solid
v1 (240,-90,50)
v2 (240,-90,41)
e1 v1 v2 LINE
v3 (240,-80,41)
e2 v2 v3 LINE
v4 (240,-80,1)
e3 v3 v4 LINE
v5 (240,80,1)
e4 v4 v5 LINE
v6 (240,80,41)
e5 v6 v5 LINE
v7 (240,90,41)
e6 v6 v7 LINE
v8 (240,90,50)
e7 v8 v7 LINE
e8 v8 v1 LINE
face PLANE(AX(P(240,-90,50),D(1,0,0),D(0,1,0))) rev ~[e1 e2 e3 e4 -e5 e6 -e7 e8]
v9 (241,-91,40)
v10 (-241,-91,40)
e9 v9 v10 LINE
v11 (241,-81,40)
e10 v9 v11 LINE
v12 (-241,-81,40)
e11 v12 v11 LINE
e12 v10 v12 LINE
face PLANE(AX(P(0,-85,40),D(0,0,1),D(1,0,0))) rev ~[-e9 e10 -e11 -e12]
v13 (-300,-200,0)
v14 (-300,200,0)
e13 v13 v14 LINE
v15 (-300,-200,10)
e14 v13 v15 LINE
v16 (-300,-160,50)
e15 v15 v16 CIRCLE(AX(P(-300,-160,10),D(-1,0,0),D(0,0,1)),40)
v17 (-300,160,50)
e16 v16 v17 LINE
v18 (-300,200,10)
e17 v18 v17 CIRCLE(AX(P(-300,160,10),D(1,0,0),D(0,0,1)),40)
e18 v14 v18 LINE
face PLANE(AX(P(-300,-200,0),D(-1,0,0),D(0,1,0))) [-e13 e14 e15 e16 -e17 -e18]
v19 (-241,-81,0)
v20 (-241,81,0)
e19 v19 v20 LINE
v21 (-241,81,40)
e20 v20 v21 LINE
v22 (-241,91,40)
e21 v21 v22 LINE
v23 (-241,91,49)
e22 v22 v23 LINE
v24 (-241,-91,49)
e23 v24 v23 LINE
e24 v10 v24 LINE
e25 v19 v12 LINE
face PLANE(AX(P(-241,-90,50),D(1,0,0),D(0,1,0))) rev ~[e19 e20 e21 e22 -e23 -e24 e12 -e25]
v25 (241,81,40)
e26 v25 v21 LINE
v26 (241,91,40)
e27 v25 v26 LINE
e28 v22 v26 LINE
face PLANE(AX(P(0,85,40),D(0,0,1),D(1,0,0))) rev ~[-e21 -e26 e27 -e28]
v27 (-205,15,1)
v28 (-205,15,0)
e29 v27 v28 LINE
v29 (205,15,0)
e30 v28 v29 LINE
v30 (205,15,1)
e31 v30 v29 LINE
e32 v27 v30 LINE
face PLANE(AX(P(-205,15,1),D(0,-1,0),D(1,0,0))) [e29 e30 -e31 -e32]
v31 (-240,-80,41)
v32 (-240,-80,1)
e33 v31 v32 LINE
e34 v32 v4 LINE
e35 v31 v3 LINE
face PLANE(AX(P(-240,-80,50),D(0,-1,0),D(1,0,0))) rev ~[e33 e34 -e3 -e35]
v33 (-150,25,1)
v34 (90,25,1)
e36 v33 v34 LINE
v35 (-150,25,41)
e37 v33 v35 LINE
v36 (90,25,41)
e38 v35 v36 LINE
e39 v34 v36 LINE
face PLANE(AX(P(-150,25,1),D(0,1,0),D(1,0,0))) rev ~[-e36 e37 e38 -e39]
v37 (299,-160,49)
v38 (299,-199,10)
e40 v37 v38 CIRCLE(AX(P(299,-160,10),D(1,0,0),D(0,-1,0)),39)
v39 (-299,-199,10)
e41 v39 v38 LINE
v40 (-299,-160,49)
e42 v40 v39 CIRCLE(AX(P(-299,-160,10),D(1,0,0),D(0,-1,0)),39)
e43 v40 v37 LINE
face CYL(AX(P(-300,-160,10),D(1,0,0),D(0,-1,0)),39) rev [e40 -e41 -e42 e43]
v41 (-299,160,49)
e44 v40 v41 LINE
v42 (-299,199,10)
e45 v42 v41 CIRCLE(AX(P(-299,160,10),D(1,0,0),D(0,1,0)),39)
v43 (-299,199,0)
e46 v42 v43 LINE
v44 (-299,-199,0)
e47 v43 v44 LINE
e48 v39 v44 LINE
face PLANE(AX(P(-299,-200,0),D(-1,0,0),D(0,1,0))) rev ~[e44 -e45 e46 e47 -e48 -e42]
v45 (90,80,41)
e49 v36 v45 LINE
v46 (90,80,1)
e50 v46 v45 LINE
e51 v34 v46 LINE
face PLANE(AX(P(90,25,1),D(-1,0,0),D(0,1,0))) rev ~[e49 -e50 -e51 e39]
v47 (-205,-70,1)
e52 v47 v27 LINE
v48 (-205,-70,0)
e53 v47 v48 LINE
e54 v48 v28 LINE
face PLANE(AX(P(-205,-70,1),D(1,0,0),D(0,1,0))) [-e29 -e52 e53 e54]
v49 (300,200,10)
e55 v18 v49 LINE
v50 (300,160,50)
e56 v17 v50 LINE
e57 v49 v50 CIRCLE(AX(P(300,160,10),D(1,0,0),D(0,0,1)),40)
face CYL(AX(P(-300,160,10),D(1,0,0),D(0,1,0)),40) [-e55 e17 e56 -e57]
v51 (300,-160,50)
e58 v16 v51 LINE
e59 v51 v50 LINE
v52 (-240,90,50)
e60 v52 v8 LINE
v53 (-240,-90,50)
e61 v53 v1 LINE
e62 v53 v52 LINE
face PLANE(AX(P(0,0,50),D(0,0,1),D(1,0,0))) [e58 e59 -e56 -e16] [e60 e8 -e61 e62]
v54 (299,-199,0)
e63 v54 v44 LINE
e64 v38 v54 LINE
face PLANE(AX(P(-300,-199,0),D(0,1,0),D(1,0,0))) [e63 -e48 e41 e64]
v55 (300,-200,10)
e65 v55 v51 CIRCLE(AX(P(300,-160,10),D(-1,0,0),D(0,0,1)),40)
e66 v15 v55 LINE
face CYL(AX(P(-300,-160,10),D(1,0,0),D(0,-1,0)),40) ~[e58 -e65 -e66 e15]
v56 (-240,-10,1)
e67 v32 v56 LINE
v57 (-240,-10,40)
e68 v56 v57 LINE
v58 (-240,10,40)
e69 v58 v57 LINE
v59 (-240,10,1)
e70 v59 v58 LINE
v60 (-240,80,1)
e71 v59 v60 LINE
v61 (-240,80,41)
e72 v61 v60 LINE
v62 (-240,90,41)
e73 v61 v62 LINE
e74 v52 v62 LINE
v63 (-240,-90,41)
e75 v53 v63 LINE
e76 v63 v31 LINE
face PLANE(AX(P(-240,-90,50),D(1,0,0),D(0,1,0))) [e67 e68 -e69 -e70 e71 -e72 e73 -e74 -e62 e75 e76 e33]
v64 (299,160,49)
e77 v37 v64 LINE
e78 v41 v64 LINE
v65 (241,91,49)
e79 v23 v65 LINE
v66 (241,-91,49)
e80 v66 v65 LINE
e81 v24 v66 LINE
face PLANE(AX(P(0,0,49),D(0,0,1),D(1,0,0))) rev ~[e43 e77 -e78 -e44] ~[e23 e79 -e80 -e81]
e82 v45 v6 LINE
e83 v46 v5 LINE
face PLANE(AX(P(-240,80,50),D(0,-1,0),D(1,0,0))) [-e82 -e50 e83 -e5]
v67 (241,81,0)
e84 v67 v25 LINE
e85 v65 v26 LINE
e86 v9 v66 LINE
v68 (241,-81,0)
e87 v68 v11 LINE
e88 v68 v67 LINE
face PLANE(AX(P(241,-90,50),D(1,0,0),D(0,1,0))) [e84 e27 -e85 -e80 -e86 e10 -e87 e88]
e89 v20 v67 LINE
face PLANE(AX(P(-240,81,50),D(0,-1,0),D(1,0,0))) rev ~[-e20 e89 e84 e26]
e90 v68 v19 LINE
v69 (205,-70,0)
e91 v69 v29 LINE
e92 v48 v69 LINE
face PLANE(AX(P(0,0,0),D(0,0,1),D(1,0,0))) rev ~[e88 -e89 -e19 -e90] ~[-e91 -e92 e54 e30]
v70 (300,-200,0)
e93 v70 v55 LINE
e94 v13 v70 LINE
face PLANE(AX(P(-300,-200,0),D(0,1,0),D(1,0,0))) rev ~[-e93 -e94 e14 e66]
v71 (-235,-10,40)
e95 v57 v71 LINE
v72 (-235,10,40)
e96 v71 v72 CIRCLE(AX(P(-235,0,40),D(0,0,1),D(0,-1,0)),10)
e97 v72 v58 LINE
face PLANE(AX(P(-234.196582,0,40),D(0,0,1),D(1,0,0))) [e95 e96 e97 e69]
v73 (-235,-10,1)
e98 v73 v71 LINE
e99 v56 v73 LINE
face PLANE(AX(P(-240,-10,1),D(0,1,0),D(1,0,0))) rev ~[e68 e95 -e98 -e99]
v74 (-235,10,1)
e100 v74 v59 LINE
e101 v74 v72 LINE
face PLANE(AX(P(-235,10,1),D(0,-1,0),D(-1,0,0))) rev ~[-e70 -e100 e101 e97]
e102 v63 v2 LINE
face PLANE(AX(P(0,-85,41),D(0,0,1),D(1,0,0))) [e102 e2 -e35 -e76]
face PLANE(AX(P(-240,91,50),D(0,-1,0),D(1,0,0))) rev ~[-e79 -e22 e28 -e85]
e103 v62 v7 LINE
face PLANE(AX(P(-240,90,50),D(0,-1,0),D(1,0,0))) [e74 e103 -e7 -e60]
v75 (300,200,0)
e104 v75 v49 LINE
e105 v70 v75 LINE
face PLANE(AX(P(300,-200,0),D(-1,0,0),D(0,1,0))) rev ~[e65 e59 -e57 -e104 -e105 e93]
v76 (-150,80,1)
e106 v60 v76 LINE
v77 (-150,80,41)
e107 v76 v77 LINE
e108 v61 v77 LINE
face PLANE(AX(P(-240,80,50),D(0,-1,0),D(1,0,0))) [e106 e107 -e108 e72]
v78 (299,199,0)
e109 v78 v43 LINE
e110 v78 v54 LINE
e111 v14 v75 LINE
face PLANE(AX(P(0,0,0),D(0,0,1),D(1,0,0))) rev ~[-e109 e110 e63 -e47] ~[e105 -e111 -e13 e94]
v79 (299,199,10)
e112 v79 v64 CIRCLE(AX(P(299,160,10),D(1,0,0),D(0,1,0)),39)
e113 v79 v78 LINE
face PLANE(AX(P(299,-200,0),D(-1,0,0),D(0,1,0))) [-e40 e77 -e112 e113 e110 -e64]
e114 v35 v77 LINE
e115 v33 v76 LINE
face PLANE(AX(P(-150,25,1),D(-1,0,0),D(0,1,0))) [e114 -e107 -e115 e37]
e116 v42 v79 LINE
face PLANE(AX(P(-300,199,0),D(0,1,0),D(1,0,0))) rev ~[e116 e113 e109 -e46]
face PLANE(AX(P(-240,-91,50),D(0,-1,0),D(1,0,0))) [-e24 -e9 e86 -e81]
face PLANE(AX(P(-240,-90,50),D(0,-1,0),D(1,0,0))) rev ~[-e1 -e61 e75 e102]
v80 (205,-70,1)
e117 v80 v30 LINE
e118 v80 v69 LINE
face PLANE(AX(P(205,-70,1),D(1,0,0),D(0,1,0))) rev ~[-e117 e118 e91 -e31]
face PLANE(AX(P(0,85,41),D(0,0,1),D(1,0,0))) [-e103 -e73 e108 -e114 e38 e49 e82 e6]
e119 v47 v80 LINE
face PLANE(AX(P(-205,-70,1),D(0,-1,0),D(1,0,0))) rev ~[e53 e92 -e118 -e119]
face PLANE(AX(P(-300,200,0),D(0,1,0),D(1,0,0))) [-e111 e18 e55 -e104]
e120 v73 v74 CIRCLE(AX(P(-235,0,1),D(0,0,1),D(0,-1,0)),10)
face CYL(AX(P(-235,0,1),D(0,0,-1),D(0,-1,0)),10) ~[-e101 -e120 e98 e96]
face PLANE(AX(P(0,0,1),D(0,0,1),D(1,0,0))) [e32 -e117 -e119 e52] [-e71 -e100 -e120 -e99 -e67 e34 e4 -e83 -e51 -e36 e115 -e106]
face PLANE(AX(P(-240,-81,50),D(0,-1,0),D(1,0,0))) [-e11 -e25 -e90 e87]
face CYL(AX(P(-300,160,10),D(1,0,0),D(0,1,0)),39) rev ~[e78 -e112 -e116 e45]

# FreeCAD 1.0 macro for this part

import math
import FreeCAD as App
import Part
import Sketcher

V = App.Vector


def edges_at(feature, points):
    """Names of the edges that pass closest to the given points."""
    edges = feature.Shape.Edges
    near = lambda p: min(range(len(edges)), key=lambda i: edges[i].distToShape(Part.Vertex(*p))[0])
    return sorted({f"Edge{near(p) + 1}" for p in points})


def faces_at(feature, points):
    """Names of the faces that lie closest to the given points."""
    faces = feature.Shape.Faces
    near = lambda p: min(range(len(faces)), key=lambda i: faces[i].distToShape(Part.Vertex(*p))[0])
    return sorted({f"Face{near(p) + 1}" for p in points})

doc = App.newDocument("Part")
params = doc.addObject("Spreadsheet::Sheet", "Params")
for row, (alias, value) in enumerate([
    ("sketch1_width", "600 mm"),
    ("sketch1_height", "400 mm"),
    ("pad1_length", "50 mm"),
    ("fillet_radius", "40 mm"),
    ("sketch2_width", "480 mm"),
    ("sketch2_height", "160 mm"),
    ("pocket1_length", "49 mm"),
    ("sketch3_width", "480 mm"),
    ("sketch3_height", "10 mm"),
    ("pocket2_length", "9 mm"),
    ("thickness_wall", "1 mm"),
    ("sketch4_width", "410 mm"),
    ("sketch4_height", "85 mm"),
    ("sketch5_width", "240 mm"),
    ("sketch5_height", "55 mm"),
    ("pad2_length", "40 mm"),
    ("sketch6_radius", "10 mm"),
    ("sketch6_width", "5 mm"),
    ("pad3_length", "39 mm"),
], start=1):
    params.set(f"A{row}", alias)
    params.set(f"B{row}", "=" + value)
    params.setAlias(f"B{row}", alias)

body = doc.addObject("PartDesign::Body", "Body")

sketch1 = doc.addObject("Sketcher::SketchObject", "Sketch")
body.addObject(sketch1)
sketch1.AttachmentSupport = (doc.XY_Plane, [""])
sketch1.MapMode = "FlatFace"
sketch1.addGeometry(Part.LineSegment(V(-300, 200, 0), V(-300, -200, 0)), False)
sketch1.addGeometry(Part.LineSegment(V(-300, -200, 0), V(300, -200, 0)), False)
sketch1.addGeometry(Part.LineSegment(V(300, -200, 0), V(300, 200, 0)), False)
sketch1.addGeometry(Part.LineSegment(V(300, 200, 0), V(-300, 200, 0)), False)
sketch1.addConstraint(Sketcher.Constraint("Coincident", 0, 2, 1, 1))
sketch1.addConstraint(Sketcher.Constraint("Coincident", 1, 2, 2, 1))
sketch1.addConstraint(Sketcher.Constraint("Coincident", 2, 2, 3, 1))
sketch1.addConstraint(Sketcher.Constraint("Coincident", 3, 2, 0, 1))
sketch1.addConstraint(Sketcher.Constraint("Vertical", 0))
sketch1.addConstraint(Sketcher.Constraint("Horizontal", 1))
sketch1.addConstraint(Sketcher.Constraint("Vertical", 2))
sketch1.addConstraint(Sketcher.Constraint("Horizontal", 3))
sketch1.addConstraint(Sketcher.Constraint("Symmetric", 0, 2, 2, 2, -1, 1))
sketch1.addConstraint(Sketcher.Constraint("DistanceX", 1, 1, 1, 2, 600.0))
sketch1.addConstraint(Sketcher.Constraint("DistanceY", 0, 2, 0, 1, 400.0))
sketch1.setExpression("Constraints[9]", "Params.sketch1_width")
sketch1.setExpression("Constraints[10]", "Params.sketch1_height")
pad1 = doc.addObject("PartDesign::Pad", "Pad")
body.addObject(pad1)
pad1.Profile = sketch1
pad1.setExpression("Length", "Params.pad1_length")
doc.recompute()

fillet = doc.addObject("PartDesign::Fillet", "Fillet")
body.addObject(fillet)
fillet.Base = (pad1, edges_at(pad1, [(0, -200, 50), (0, 200, 50)]))
fillet.setExpression("Radius", "Params.fillet_radius")

sketch2 = doc.addObject("Sketcher::SketchObject", "Sketch001")
body.addObject(sketch2)
sketch2.AttachmentSupport = (doc.XY_Plane, [""])
sketch2.MapMode = "FlatFace"
sketch2.AttachmentOffset = App.Placement(V(0, 0, 50), App.Rotation())
sketch2.addGeometry(Part.LineSegment(V(-240, 80, 0), V(-240, -80, 0)), False)
sketch2.addGeometry(Part.LineSegment(V(-240, -80, 0), V(240, -80, 0)), False)
sketch2.addGeometry(Part.LineSegment(V(240, -80, 0), V(240, 80, 0)), False)
sketch2.addGeometry(Part.LineSegment(V(240, 80, 0), V(-240, 80, 0)), False)
sketch2.addConstraint(Sketcher.Constraint("Coincident", 0, 2, 1, 1))
sketch2.addConstraint(Sketcher.Constraint("Coincident", 1, 2, 2, 1))
sketch2.addConstraint(Sketcher.Constraint("Coincident", 2, 2, 3, 1))
sketch2.addConstraint(Sketcher.Constraint("Coincident", 3, 2, 0, 1))
sketch2.addConstraint(Sketcher.Constraint("Vertical", 0))
sketch2.addConstraint(Sketcher.Constraint("Horizontal", 1))
sketch2.addConstraint(Sketcher.Constraint("Vertical", 2))
sketch2.addConstraint(Sketcher.Constraint("Horizontal", 3))
sketch2.addConstraint(Sketcher.Constraint("Symmetric", 0, 2, 2, 2, -1, 1))
sketch2.addConstraint(Sketcher.Constraint("DistanceX", 1, 1, 1, 2, 480.0))
sketch2.addConstraint(Sketcher.Constraint("DistanceY", 0, 2, 0, 1, 160.0))
sketch2.setExpression("Constraints[9]", "Params.sketch2_width")
sketch2.setExpression("Constraints[10]", "Params.sketch2_height")
pocket1 = doc.addObject("PartDesign::Pocket", "Pocket")
body.addObject(pocket1)
pocket1.Profile = sketch2
pocket1.setExpression("Length", "Params.pocket1_length")

sketch3 = doc.addObject("Sketcher::SketchObject", "Sketch002")
body.addObject(sketch3)
sketch3.AttachmentSupport = (doc.XY_Plane, [""])
sketch3.MapMode = "FlatFace"
sketch3.AttachmentOffset = App.Placement(V(0, 0, 50), App.Rotation())
sketch3.addGeometry(Part.LineSegment(V(-240, 90, 0), V(-240, 80, 0)), False)
sketch3.addGeometry(Part.LineSegment(V(-240, 80, 0), V(240, 80, 0)), False)
sketch3.addGeometry(Part.LineSegment(V(240, 80, 0), V(240, 90, 0)), False)
sketch3.addGeometry(Part.LineSegment(V(240, 90, 0), V(-240, 90, 0)), False)
sketch3.addGeometry(Part.LineSegment(V(-240, -80, 0), V(-240, -90, 0)), False)
sketch3.addGeometry(Part.LineSegment(V(-240, -90, 0), V(240, -90, 0)), False)
sketch3.addGeometry(Part.LineSegment(V(240, -90, 0), V(240, -80, 0)), False)
sketch3.addGeometry(Part.LineSegment(V(240, -80, 0), V(-240, -80, 0)), False)
sketch3.addConstraint(Sketcher.Constraint("Coincident", 0, 2, 1, 1))
sketch3.addConstraint(Sketcher.Constraint("Coincident", 1, 2, 2, 1))
sketch3.addConstraint(Sketcher.Constraint("Coincident", 2, 2, 3, 1))
sketch3.addConstraint(Sketcher.Constraint("Coincident", 3, 2, 0, 1))
sketch3.addConstraint(Sketcher.Constraint("Coincident", 4, 2, 5, 1))
sketch3.addConstraint(Sketcher.Constraint("Coincident", 5, 2, 6, 1))
sketch3.addConstraint(Sketcher.Constraint("Coincident", 6, 2, 7, 1))
sketch3.addConstraint(Sketcher.Constraint("Coincident", 7, 2, 4, 1))
sketch3.addConstraint(Sketcher.Constraint("Vertical", 0))
sketch3.addConstraint(Sketcher.Constraint("Horizontal", 1))
sketch3.addConstraint(Sketcher.Constraint("Vertical", 2))
sketch3.addConstraint(Sketcher.Constraint("Horizontal", 3))
sketch3.addConstraint(Sketcher.Constraint("Vertical", 4))
sketch3.addConstraint(Sketcher.Constraint("Horizontal", 5))
sketch3.addConstraint(Sketcher.Constraint("Vertical", 6))
sketch3.addConstraint(Sketcher.Constraint("Horizontal", 7))
sketch3.addConstraint(Sketcher.Constraint("Symmetric", 2, 2, 4, 2, -1, 1))
sketch3.addConstraint(Sketcher.Constraint("Symmetric", 0, 2, 6, 2, -1, 1))
sketch3.addConstraint(Sketcher.Constraint("Vertical", 3, 2, 4, 2))
sketch3.addConstraint(Sketcher.Constraint("DistanceX", 1, 1, 1, 2, 480.0))
sketch3.addConstraint(Sketcher.Constraint("DistanceY", 0, 2, 0, 1, 10.0))
sketch3.addConstraint(Sketcher.Constraint("DistanceY", -1, 1, 0, 2, 80.0))
sketch3.setExpression("Constraints[19]", "Params.sketch3_width")
sketch3.setExpression("Constraints[20]", "Params.sketch3_height")
pocket2 = doc.addObject("PartDesign::Pocket", "Pocket001")
body.addObject(pocket2)
pocket2.Profile = sketch3
pocket2.setExpression("Length", "Params.pocket2_length")
doc.recompute()

thickness = doc.addObject("PartDesign::Thickness", "Thickness")
body.addObject(thickness)
thickness.Base = (pocket2, faces_at(pocket2, [(0, 0, 0)]))
thickness.setExpression("Value", "Params.thickness_wall")
thickness.Reversed = True
thickness.Join = "Intersection"

sketch4 = doc.addObject("Sketcher::SketchObject", "Sketch003")
body.addObject(sketch4)
sketch4.AttachmentSupport = (doc.XY_Plane, [""])
sketch4.MapMode = "FlatFace"
sketch4.AttachmentOffset = App.Placement(V(0, 0, 1), App.Rotation())
sketch4.addGeometry(Part.LineSegment(V(-205, 15, 0), V(-205, -70, 0)), False)
sketch4.addGeometry(Part.LineSegment(V(-205, -70, 0), V(205, -70, 0)), False)
sketch4.addGeometry(Part.LineSegment(V(205, -70, 0), V(205, 15, 0)), False)
sketch4.addGeometry(Part.LineSegment(V(205, 15, 0), V(-205, 15, 0)), False)
sketch4.addConstraint(Sketcher.Constraint("Coincident", 0, 2, 1, 1))
sketch4.addConstraint(Sketcher.Constraint("Coincident", 1, 2, 2, 1))
sketch4.addConstraint(Sketcher.Constraint("Coincident", 2, 2, 3, 1))
sketch4.addConstraint(Sketcher.Constraint("Coincident", 3, 2, 0, 1))
sketch4.addConstraint(Sketcher.Constraint("Vertical", 0))
sketch4.addConstraint(Sketcher.Constraint("Horizontal", 1))
sketch4.addConstraint(Sketcher.Constraint("Vertical", 2))
sketch4.addConstraint(Sketcher.Constraint("Horizontal", 3))
sketch4.addConstraint(Sketcher.Constraint("DistanceX", 1, 1, 1, 2, 410.0))
sketch4.addConstraint(Sketcher.Constraint("DistanceY", 0, 2, 0, 1, 85.0))
sketch4.addConstraint(Sketcher.Constraint("DistanceX", 0, 2, -1, 1, 205.0))
sketch4.addConstraint(Sketcher.Constraint("DistanceY", 0, 2, -1, 1, 70.0))
sketch4.setExpression("Constraints[8]", "Params.sketch4_width")
sketch4.setExpression("Constraints[9]", "Params.sketch4_height")
pocket3 = doc.addObject("PartDesign::Pocket", "Pocket002")
body.addObject(pocket3)
pocket3.Profile = sketch4
pocket3.Type = "ThroughAll"

sketch5 = doc.addObject("Sketcher::SketchObject", "Sketch004")
body.addObject(sketch5)
sketch5.AttachmentSupport = (doc.XY_Plane, [""])
sketch5.MapMode = "FlatFace"
sketch5.AttachmentOffset = App.Placement(V(0, 0, 1), App.Rotation())
sketch5.addGeometry(Part.LineSegment(V(-150, 80, 0), V(-150, 25, 0)), False)
sketch5.addGeometry(Part.LineSegment(V(-150, 25, 0), V(90, 25, 0)), False)
sketch5.addGeometry(Part.LineSegment(V(90, 25, 0), V(90, 80, 0)), False)
sketch5.addGeometry(Part.LineSegment(V(90, 80, 0), V(-150, 80, 0)), False)
sketch5.addConstraint(Sketcher.Constraint("Coincident", 0, 2, 1, 1))
sketch5.addConstraint(Sketcher.Constraint("Coincident", 1, 2, 2, 1))
sketch5.addConstraint(Sketcher.Constraint("Coincident", 2, 2, 3, 1))
sketch5.addConstraint(Sketcher.Constraint("Coincident", 3, 2, 0, 1))
sketch5.addConstraint(Sketcher.Constraint("Vertical", 0))
sketch5.addConstraint(Sketcher.Constraint("Horizontal", 1))
sketch5.addConstraint(Sketcher.Constraint("Vertical", 2))
sketch5.addConstraint(Sketcher.Constraint("Horizontal", 3))
sketch5.addConstraint(Sketcher.Constraint("DistanceX", 1, 1, 1, 2, 240.0))
sketch5.addConstraint(Sketcher.Constraint("DistanceY", 0, 2, 0, 1, 55.0))
sketch5.addConstraint(Sketcher.Constraint("DistanceX", 0, 2, -1, 1, 150.0))
sketch5.addConstraint(Sketcher.Constraint("DistanceY", -1, 1, 0, 2, 25.0))
sketch5.setExpression("Constraints[8]", "Params.sketch5_width")
sketch5.setExpression("Constraints[9]", "Params.sketch5_height")
pad2 = doc.addObject("PartDesign::Pad", "Pad001")
body.addObject(pad2)
pad2.Profile = sketch5
pad2.setExpression("Length", "Params.pad2_length")

sketch6 = doc.addObject("Sketcher::SketchObject", "Sketch005")
body.addObject(sketch6)
sketch6.AttachmentSupport = (doc.XY_Plane, [""])
sketch6.MapMode = "FlatFace"
sketch6.AttachmentOffset = App.Placement(V(0, 0, 1), App.Rotation())
sketch6.addGeometry(Part.LineSegment(V(-240, -10, 0), V(-235, -10, 0)), False)
sketch6.addGeometry(Part.ArcOfCircle(Part.Circle(V(-235, 0, 0), V(0, 0, 1), 10), math.radians(-90), math.radians(90)), False)
sketch6.addGeometry(Part.LineSegment(V(-235, 10, 0), V(-240, 10, 0)), False)
sketch6.addGeometry(Part.LineSegment(V(-240, 10, 0), V(-240, -10, 0)), False)
sketch6.addConstraint(Sketcher.Constraint("Tangent", 0, 2, 1, 1))
sketch6.addConstraint(Sketcher.Constraint("Tangent", 1, 2, 2, 1))
sketch6.addConstraint(Sketcher.Constraint("Coincident", 2, 2, 3, 1))
sketch6.addConstraint(Sketcher.Constraint("Coincident", 3, 2, 0, 1))
sketch6.addConstraint(Sketcher.Constraint("Horizontal", 0))
sketch6.addConstraint(Sketcher.Constraint("Horizontal", 2))
sketch6.addConstraint(Sketcher.Constraint("Vertical", 3))
sketch6.addConstraint(Sketcher.Constraint("PointOnObject", 1, 3, -1))
sketch6.addConstraint(Sketcher.Constraint("Radius", 1, 10.0))
sketch6.addConstraint(Sketcher.Constraint("DistanceX", 0, 1, 0, 2, 5.0))
sketch6.addConstraint(Sketcher.Constraint("DistanceX", 1, 3, -1, 1, 235.0))
sketch6.setExpression("Constraints[8]", "Params.sketch6_radius")
sketch6.setExpression("Constraints[9]", "Params.sketch6_width")
pad3 = doc.addObject("PartDesign::Pad", "Pad002")
body.addObject(pad3)
pad3.Profile = sketch6
pad3.setExpression("Length", "Params.pad3_length")

doc.recompute()
